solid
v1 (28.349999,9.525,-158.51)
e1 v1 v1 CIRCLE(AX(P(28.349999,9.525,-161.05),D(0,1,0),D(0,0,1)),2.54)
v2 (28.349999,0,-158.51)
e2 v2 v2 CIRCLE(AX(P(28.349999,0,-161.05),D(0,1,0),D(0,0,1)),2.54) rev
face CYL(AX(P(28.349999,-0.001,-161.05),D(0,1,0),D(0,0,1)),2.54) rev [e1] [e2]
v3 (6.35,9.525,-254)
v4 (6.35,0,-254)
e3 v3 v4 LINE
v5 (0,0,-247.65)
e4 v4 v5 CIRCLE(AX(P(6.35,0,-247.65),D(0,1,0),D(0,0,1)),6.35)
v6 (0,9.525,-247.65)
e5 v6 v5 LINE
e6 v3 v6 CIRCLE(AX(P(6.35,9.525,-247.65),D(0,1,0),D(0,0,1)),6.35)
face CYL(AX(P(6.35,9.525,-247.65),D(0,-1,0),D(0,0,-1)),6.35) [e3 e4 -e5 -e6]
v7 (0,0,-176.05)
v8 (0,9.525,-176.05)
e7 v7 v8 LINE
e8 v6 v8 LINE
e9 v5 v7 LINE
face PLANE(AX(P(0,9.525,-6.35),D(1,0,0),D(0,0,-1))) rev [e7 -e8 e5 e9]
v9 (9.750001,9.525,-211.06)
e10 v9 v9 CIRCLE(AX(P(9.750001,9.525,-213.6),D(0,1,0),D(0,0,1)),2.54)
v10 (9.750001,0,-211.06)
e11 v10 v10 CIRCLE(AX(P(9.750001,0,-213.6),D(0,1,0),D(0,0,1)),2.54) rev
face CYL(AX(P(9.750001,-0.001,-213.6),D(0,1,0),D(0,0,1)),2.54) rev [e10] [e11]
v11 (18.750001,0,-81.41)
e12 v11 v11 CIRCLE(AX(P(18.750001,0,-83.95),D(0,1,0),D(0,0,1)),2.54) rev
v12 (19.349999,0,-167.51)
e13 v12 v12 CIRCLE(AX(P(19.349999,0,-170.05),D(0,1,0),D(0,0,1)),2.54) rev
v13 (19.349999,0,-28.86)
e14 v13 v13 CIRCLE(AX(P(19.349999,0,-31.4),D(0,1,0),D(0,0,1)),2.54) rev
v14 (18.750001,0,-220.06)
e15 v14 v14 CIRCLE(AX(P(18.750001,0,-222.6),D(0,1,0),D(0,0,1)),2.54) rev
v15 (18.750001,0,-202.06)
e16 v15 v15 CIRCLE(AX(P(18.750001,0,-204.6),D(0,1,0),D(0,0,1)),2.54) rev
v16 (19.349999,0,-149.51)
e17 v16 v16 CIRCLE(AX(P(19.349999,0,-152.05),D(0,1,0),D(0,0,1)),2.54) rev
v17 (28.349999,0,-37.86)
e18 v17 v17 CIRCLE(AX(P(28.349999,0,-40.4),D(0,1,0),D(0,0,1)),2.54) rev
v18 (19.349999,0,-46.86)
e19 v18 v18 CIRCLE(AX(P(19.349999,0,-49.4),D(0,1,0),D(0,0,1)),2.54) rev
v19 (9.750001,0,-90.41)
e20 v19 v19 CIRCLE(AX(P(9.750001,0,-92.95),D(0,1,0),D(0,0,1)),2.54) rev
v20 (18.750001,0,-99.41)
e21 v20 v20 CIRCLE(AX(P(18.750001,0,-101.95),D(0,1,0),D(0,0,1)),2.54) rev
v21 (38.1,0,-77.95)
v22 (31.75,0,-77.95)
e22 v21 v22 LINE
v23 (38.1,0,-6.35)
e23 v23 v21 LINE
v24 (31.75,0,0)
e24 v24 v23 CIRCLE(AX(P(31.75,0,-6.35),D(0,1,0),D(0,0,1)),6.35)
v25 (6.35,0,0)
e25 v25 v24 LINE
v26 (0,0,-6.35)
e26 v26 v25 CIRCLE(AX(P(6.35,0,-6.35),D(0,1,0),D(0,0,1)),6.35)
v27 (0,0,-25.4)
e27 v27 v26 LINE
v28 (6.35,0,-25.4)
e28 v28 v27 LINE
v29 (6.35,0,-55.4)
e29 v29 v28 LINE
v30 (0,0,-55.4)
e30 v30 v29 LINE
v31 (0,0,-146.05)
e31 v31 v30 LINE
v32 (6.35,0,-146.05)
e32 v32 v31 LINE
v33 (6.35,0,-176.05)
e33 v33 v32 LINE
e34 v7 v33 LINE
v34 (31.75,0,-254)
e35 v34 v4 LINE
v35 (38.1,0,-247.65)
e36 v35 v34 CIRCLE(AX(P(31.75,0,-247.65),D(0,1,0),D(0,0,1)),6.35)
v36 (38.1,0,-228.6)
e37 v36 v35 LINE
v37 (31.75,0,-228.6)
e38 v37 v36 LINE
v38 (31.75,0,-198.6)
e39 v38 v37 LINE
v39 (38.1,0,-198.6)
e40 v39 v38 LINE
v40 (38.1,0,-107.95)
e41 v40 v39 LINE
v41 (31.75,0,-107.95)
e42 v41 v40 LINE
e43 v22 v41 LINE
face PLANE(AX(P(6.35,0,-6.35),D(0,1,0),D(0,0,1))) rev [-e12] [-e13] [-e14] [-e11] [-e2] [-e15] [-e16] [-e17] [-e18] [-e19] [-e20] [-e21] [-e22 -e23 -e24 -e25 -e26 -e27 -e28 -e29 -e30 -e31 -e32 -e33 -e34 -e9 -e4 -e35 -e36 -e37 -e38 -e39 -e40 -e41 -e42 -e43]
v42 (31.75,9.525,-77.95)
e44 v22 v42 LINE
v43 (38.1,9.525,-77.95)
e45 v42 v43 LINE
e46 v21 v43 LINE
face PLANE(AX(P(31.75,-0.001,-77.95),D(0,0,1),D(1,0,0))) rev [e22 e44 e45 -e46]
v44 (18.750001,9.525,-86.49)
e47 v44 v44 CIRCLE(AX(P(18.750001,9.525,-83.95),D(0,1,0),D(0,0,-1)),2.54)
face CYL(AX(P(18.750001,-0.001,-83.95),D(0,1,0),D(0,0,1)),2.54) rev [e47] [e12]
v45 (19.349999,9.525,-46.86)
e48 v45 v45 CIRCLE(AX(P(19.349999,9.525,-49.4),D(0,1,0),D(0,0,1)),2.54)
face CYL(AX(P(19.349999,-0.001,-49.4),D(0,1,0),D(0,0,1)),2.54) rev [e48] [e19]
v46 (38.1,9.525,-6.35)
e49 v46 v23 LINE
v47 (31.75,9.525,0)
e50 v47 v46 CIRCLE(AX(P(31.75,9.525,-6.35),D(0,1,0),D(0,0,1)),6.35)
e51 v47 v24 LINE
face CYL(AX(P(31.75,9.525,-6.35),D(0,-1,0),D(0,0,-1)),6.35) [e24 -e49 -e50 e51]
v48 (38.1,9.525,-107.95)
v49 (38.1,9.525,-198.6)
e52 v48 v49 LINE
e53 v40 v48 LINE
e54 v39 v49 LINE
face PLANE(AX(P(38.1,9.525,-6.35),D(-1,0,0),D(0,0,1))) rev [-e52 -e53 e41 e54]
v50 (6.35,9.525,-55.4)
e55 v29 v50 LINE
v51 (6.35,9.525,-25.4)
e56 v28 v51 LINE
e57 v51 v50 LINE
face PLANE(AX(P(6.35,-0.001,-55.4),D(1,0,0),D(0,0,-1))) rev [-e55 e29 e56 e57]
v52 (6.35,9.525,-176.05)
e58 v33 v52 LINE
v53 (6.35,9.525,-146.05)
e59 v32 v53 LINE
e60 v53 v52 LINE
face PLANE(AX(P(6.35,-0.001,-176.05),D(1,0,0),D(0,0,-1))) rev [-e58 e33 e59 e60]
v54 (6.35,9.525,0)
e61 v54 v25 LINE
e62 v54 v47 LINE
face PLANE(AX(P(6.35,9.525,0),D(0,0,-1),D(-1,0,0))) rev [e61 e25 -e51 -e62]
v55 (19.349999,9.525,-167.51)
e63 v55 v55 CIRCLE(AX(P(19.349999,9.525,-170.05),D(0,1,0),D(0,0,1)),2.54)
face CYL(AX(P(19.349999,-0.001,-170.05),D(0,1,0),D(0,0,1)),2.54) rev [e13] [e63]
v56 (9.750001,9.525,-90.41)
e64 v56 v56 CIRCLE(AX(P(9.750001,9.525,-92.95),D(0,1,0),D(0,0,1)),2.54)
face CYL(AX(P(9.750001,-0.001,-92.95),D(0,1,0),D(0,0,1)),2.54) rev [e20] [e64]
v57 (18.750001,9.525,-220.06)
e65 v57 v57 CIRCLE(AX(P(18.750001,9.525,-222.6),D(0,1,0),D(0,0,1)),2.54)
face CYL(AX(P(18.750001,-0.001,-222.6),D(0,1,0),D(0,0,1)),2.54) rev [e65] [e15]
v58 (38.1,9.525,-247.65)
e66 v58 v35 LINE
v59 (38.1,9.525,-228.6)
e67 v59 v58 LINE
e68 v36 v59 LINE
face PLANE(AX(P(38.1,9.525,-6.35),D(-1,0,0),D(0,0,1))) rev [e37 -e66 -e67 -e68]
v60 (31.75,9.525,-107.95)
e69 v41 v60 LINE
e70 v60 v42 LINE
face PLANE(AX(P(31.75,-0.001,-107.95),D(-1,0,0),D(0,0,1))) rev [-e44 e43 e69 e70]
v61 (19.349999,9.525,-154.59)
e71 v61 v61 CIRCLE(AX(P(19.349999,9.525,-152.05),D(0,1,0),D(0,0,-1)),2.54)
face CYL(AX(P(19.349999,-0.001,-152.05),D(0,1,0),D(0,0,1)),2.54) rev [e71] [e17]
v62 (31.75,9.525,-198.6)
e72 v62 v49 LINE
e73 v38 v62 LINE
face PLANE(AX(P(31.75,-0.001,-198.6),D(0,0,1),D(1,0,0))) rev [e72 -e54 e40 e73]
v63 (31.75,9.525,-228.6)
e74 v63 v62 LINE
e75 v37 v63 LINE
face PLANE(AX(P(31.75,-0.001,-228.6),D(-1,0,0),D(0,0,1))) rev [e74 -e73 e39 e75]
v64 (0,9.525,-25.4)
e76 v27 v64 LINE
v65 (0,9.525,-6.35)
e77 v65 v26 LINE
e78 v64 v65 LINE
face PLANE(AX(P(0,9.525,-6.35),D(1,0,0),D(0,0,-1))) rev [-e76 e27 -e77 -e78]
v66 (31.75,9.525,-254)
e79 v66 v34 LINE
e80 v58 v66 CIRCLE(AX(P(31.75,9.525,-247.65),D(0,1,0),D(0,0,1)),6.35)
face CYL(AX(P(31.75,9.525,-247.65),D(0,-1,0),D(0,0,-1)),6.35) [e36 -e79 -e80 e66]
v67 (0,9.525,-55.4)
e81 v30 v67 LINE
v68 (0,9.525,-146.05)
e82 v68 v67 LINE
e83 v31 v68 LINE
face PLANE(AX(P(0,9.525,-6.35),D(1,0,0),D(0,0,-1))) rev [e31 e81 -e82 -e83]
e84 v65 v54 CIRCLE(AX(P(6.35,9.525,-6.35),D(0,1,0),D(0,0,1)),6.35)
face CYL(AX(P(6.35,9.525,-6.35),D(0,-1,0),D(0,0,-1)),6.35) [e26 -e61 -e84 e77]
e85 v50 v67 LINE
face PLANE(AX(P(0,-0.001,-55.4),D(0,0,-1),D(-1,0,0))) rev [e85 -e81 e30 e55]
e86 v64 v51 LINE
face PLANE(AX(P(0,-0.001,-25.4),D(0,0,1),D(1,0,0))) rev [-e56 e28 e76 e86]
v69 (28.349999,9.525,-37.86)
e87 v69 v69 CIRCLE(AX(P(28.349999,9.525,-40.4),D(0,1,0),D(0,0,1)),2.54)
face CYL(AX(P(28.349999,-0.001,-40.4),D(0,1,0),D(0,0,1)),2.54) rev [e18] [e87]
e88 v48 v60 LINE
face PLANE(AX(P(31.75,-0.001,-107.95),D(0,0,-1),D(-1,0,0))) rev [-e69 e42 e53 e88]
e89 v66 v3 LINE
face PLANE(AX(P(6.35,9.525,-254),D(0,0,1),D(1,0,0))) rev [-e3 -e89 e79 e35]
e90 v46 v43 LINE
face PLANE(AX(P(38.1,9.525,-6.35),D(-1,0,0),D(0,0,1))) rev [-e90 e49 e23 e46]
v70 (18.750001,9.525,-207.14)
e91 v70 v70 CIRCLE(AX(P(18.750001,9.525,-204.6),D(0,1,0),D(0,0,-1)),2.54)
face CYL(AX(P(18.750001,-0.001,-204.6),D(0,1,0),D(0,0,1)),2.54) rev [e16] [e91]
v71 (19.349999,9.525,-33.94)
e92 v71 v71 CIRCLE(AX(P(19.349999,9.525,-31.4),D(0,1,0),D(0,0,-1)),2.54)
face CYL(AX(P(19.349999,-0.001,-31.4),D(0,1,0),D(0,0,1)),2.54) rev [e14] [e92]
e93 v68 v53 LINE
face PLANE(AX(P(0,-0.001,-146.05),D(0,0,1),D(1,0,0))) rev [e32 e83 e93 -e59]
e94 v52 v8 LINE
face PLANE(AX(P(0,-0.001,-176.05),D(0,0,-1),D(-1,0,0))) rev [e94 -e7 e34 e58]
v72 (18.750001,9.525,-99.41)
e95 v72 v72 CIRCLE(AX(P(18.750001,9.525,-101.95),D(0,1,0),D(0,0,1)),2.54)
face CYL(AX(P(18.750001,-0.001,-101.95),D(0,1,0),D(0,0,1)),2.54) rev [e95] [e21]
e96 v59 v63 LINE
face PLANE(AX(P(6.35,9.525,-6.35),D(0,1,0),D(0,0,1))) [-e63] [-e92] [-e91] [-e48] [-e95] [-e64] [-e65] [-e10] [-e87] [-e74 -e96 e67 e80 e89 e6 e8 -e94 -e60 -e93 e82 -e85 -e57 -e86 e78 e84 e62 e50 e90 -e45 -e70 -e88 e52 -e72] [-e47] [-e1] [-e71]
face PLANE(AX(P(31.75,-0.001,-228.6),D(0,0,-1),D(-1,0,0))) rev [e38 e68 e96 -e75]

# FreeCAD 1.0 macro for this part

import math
import FreeCAD as App
import Part
import Sketcher

V = App.Vector
Q = App.Units.Quantity

doc = App.newDocument("Part")
params = doc.addObject("Spreadsheet::Sheet", "Params")
for row, (alias, value) in enumerate([
    ("sketch1_width", "1 in"),
    ("sketch1_radius", "0.25 in"),
    ("sketch1_height", "9.5 in"),
    ("pad1_length", "0.375 in"),
    ("sketch2_diameter", "0.2 in"),
    ("sketch3_diameter", "0.2 in"),
    ("sketch4_diameter", "0.2 in"),
    ("sketch5_diameter", "0.2 in"),
    ("sketch6_diameter", "0.2 in"),
    ("sketch7_diameter", "0.2 in"),
    ("sketch8_diameter", "0.2 in"),
    ("sketch9_diameter", "0.2 in"),
    ("sketch10_diameter", "0.2 in"),
    ("sketch11_diameter", "0.2 in"),
    ("sketch12_diameter", "0.2 in"),
    ("sketch13_diameter", "0.2 in"),
    ("sketch14_width", "0.25 in"),
    ("sketch15_width", "0.25 in"),
    ("sketch16_width", "0.25 in"),
    ("sketch17_width", "0.25 in"),
], start=1):
    params.set(f"A{row}", alias)
    params.set(f"B{row}", "=" + value)
    params.setAlias(f"B{row}", alias)

body = doc.addObject("PartDesign::Body", "Body")

# Sketch on XZ plane
sketch1 = body.newObject("Sketcher::SketchObject", "Sketch")
sketch1.AttachmentSupport = (doc.getObject("XZ_Plane"), [""])
sketch1.MapMode = "FlatFace"
sketch1.addGeometry([
    Part.LineSegment(V(6.35, 0, 0), V(31.75, 0, 0)),  # 0
    Part.ArcOfCircle(Part.Circle(V(31.75, -6.35, 0), V(0, 0, 1), 6.35), math.radians(0), math.radians(90)),  # 1
    Part.LineSegment(V(38.1, -6.35, 0), V(38.1, -247.65, 0)),  # 2
    Part.ArcOfCircle(Part.Circle(V(31.75, -247.65, 0), V(0, 0, 1), 6.35), math.radians(-90), math.radians(0)),  # 3
    Part.LineSegment(V(31.75, -254, 0), V(6.35, -254, 0)),  # 4
    Part.ArcOfCircle(Part.Circle(V(6.35, -247.65, 0), V(0, 0, 1), 6.35), math.radians(180), math.radians(270)),  # 5
    Part.LineSegment(V(0, -247.65, 0), V(0, -6.35, 0)),  # 6
    Part.ArcOfCircle(Part.Circle(V(6.35, -6.35, 0), V(0, 0, 1), 6.35), math.radians(90), math.radians(180)),  # 7
], False)
sketch1.addConstraint([
    Sketcher.Constraint("Tangent", 0, 2, 1, 2),
    Sketcher.Constraint("Tangent", 1, 1, 2, 1),
    Sketcher.Constraint("Tangent", 2, 2, 3, 2),
    Sketcher.Constraint("Tangent", 3, 1, 4, 1),
    Sketcher.Constraint("Tangent", 4, 2, 5, 2),
    Sketcher.Constraint("Tangent", 5, 1, 6, 1),
    Sketcher.Constraint("Tangent", 6, 2, 7, 2),
    Sketcher.Constraint("Tangent", 7, 1, 0, 1),
    Sketcher.Constraint("Horizontal", 0),
    Sketcher.Constraint("Vertical", 2),
    Sketcher.Constraint("Horizontal", 4),
    Sketcher.Constraint("Vertical", 6),
    Sketcher.Constraint("Equal", 1, 3),
    Sketcher.Constraint("Equal", 3, 5),
    Sketcher.Constraint("Equal", 5, 7),
    Sketcher.Constraint("PointOnObject", 0, 2, -1),
    Sketcher.Constraint("PointOnObject", 5, 1, -2),
    Sketcher.Constraint("DistanceX", 0, 1, 0, 2, Q("1 in")),
    Sketcher.Constraint("Radius", 1, Q("0.25 in")),
    Sketcher.Constraint("DistanceY", 2, 2, 2, 1, Q("9.5 in")),
])
sketch1.setExpression("Constraints[17]", "Params.sketch1_width")
sketch1.setExpression("Constraints[18]", "Params.sketch1_radius")
sketch1.setExpression("Constraints[19]", "Params.sketch1_height")
pad1 = body.newObject("PartDesign::Pad", "Pad")
pad1.Profile = sketch1
pad1.setExpression("Length", "Params.pad1_length")
pad1.Reversed = True

# Sketch on XZ plane
sketch2 = body.newObject("Sketcher::SketchObject", "Sketch001")
sketch2.AttachmentSupport = (doc.getObject("XZ_Plane"), [""])
sketch2.MapMode = "FlatFace"
sketch2.AttachmentOffset = App.Placement(V(0, 0, -0.375 * 25.4), App.Rotation())
sketch2.addGeometry(Part.Circle(V(28.349999, -40.4, 0), V(0, 0, 1), 2.54), False)
sketch2.addConstraint([
    Sketcher.Constraint("Diameter", 0, Q("0.2 in")),
    Sketcher.Constraint("DistanceX", -1, 1, 0, 3, Q("28.349999 mm")),
    Sketcher.Constraint("DistanceY", 0, 3, -1, 1, Q("40.4 mm")),
])
sketch2.setExpression("Constraints[0]", "Params.sketch2_diameter")
pocket1 = body.newObject("PartDesign::Pocket", "Pocket")
pocket1.Profile = sketch2
pocket1.Type = "UpToFirst"
pocket1.Reversed = True

# Sketch on XZ plane
sketch3 = body.newObject("Sketcher::SketchObject", "Sketch002")
sketch3.AttachmentSupport = (doc.getObject("XZ_Plane"), [""])
sketch3.MapMode = "FlatFace"
sketch3.AttachmentOffset = App.Placement(V(0, 0, -0.375 * 25.4), App.Rotation())
sketch3.addGeometry(Part.Circle(V(19.349999, -49.4, 0), V(0, 0, 1), 2.54), False)
sketch3.addConstraint([
    Sketcher.Constraint("Diameter", 0, Q("0.2 in")),
    Sketcher.Constraint("DistanceX", -1, 1, 0, 3, Q("19.349999 mm")),
    Sketcher.Constraint("DistanceY", 0, 3, -1, 1, Q("49.4 mm")),
])
sketch3.setExpression("Constraints[0]", "Params.sketch3_diameter")
pocket2 = body.newObject("PartDesign::Pocket", "Pocket001")
pocket2.Profile = sketch3
pocket2.Type = "UpToFirst"
pocket2.Reversed = True

# Sketch on XZ plane
sketch4 = body.newObject("Sketcher::SketchObject", "Sketch003")
sketch4.AttachmentSupport = (doc.getObject("XZ_Plane"), [""])
sketch4.MapMode = "FlatFace"
sketch4.AttachmentOffset = App.Placement(V(0, 0, -0.375 * 25.4), App.Rotation())
sketch4.addGeometry(Part.Circle(V(19.349999, -31.4, 0), V(0, 0, 1), 2.54), False)
sketch4.addConstraint([
    Sketcher.Constraint("Diameter", 0, Q("0.2 in")),
    Sketcher.Constraint("DistanceX", -1, 1, 0, 3, Q("19.349999 mm")),
    Sketcher.Constraint("DistanceY", 0, 3, -1, 1, Q("31.4 mm")),
])
sketch4.setExpression("Constraints[0]", "Params.sketch4_diameter")
pocket3 = body.newObject("PartDesign::Pocket", "Pocket002")
pocket3.Profile = sketch4
pocket3.Type = "UpToFirst"
pocket3.Reversed = True

# Sketch on XZ plane
sketch5 = body.newObject("Sketcher::SketchObject", "Sketch004")
sketch5.AttachmentSupport = (doc.getObject("XZ_Plane"), [""])
sketch5.MapMode = "FlatFace"
sketch5.AttachmentOffset = App.Placement(V(0, 0, -0.375 * 25.4), App.Rotation())
sketch5.addGeometry(Part.Circle(V(28.349999, -161.05, 0), V(0, 0, 1), 2.54), False)
sketch5.addConstraint([
    Sketcher.Constraint("Diameter", 0, Q("0.2 in")),
    Sketcher.Constraint("DistanceX", -1, 1, 0, 3, Q("28.349999 mm")),
    Sketcher.Constraint("DistanceY", 0, 3, -1, 1, Q("161.05 mm")),
])
sketch5.setExpression("Constraints[0]", "Params.sketch5_diameter")
pocket4 = body.newObject("PartDesign::Pocket", "Pocket003")
pocket4.Profile = sketch5
pocket4.Type = "UpToFirst"
pocket4.Reversed = True

# Sketch on XZ plane
sketch6 = body.newObject("Sketcher::SketchObject", "Sketch005")
sketch6.AttachmentSupport = (doc.getObject("XZ_Plane"), [""])
sketch6.MapMode = "FlatFace"
sketch6.AttachmentOffset = App.Placement(V(0, 0, -0.375 * 25.4), App.Rotation())
sketch6.addGeometry(Part.Circle(V(19.349999, -170.05, 0), V(0, 0, 1), 2.54), False)
sketch6.addConstraint([
    Sketcher.Constraint("Diameter", 0, Q("0.2 in")),
    Sketcher.Constraint("DistanceX", -1, 1, 0, 3, Q("19.349999 mm")),
    Sketcher.Constraint("DistanceY", 0, 3, -1, 1, Q("170.05 mm")),
])
sketch6.setExpression("Constraints[0]", "Params.sketch6_diameter")
pocket5 = body.newObject("PartDesign::Pocket", "Pocket004")
pocket5.Profile = sketch6
pocket5.Type = "UpToFirst"
pocket5.Reversed = True

# Sketch on XZ plane
sketch7 = body.newObject("Sketcher::SketchObject", "Sketch006")
sketch7.AttachmentSupport = (doc.getObject("XZ_Plane"), [""])
sketch7.MapMode = "FlatFace"
sketch7.AttachmentOffset = App.Placement(V(0, 0, -0.375 * 25.4), App.Rotation())
sketch7.addGeometry(Part.Circle(V(19.349999, -152.05, 0), V(0, 0, 1), 2.54), False)
sketch7.addConstraint([
    Sketcher.Constraint("Diameter", 0, Q("0.2 in")),
    Sketcher.Constraint("DistanceX", -1, 1, 0, 3, Q("19.349999 mm")),
    Sketcher.Constraint("DistanceY", 0, 3, -1, 1, Q("152.05 mm")),
])
sketch7.setExpression("Constraints[0]", "Params.sketch7_diameter")
pocket6 = body.newObject("PartDesign::Pocket", "Pocket005")
pocket6.Profile = sketch7
pocket6.Type = "UpToFirst"
pocket6.Reversed = True

# Sketch on XZ plane
sketch8 = body.newObject("Sketcher::SketchObject", "Sketch007")
sketch8.AttachmentSupport = (doc.getObject("XZ_Plane"), [""])
sketch8.MapMode = "FlatFace"
sketch8.AttachmentOffset = App.Placement(V(0, 0, -0.375 * 25.4), App.Rotation())
sketch8.addGeometry(Part.Circle(V(9.750001, -213.6, 0), V(0, 0, 1), 2.54), False)
sketch8.addConstraint([
    Sketcher.Constraint("Diameter", 0, Q("0.2 in")),
    Sketcher.Constraint("DistanceX", -1, 1, 0, 3, Q("9.750001 mm")),
    Sketcher.Constraint("DistanceY", 0, 3, -1, 1, Q("213.6 mm")),
])
sketch8.setExpression("Constraints[0]", "Params.sketch8_diameter")
pocket7 = body.newObject("PartDesign::Pocket", "Pocket006")
pocket7.Profile = sketch8
pocket7.Type = "UpToFirst"
pocket7.Reversed = True

# Sketch on XZ plane
sketch9 = body.newObject("Sketcher::SketchObject", "Sketch008")
sketch9.AttachmentSupport = (doc.getObject("XZ_Plane"), [""])
sketch9.MapMode = "FlatFace"
sketch9.AttachmentOffset = App.Placement(V(0, 0, -0.375 * 25.4), App.Rotation())
sketch9.addGeometry(Part.Circle(V(18.750001, -222.6, 0), V(0, 0, 1), 2.54), False)
sketch9.addConstraint([
    Sketcher.Constraint("Diameter", 0, Q("0.2 in")),
    Sketcher.Constraint("DistanceX", -1, 1, 0, 3, Q("18.750001 mm")),
    Sketcher.Constraint("DistanceY", 0, 3, -1, 1, Q("222.6 mm")),
])
sketch9.setExpression("Constraints[0]", "Params.sketch9_diameter")
pocket8 = body.newObject("PartDesign::Pocket", "Pocket007")
pocket8.Profile = sketch9
pocket8.Type = "UpToFirst"
pocket8.Reversed = True

# Sketch on XZ plane
sketch10 = body.newObject("Sketcher::SketchObject", "Sketch009")
sketch10.AttachmentSupport = (doc.getObject("XZ_Plane"), [""])
sketch10.MapMode = "FlatFace"
sketch10.AttachmentOffset = App.Placement(V(0, 0, -0.375 * 25.4), App.Rotation())
sketch10.addGeometry(Part.Circle(V(18.750001, -204.6, 0), V(0, 0, 1), 2.54), False)
sketch10.addConstraint([
    Sketcher.Constraint("Diameter", 0, Q("0.2 in")),
    Sketcher.Constraint("DistanceX", -1, 1, 0, 3, Q("18.750001 mm")),
    Sketcher.Constraint("DistanceY", 0, 3, -1, 1, Q("204.6 mm")),
])
sketch10.setExpression("Constraints[0]", "Params.sketch10_diameter")
pocket9 = body.newObject("PartDesign::Pocket", "Pocket008")
pocket9.Profile = sketch10
pocket9.Type = "UpToFirst"
pocket9.Reversed = True

# Sketch on XZ plane
sketch11 = body.newObject("Sketcher::SketchObject", "Sketch010")
sketch11.AttachmentSupport = (doc.getObject("XZ_Plane"), [""])
sketch11.MapMode = "FlatFace"
sketch11.AttachmentOffset = App.Placement(V(0, 0, -0.375 * 25.4), App.Rotation())
sketch11.addGeometry(Part.Circle(V(9.750001, -92.95, 0), V(0, 0, 1), 2.54), False)
sketch11.addConstraint([
    Sketcher.Constraint("Diameter", 0, Q("0.2 in")),
    Sketcher.Constraint("DistanceX", -1, 1, 0, 3, Q("9.750001 mm")),
    Sketcher.Constraint("DistanceY", 0, 3, -1, 1, Q("92.95 mm")),
])
sketch11.setExpression("Constraints[0]", "Params.sketch11_diameter")
pocket10 = body.newObject("PartDesign::Pocket", "Pocket009")
pocket10.Profile = sketch11
pocket10.Type = "UpToFirst"
pocket10.Reversed = True

# Sketch on XZ plane
sketch12 = body.newObject("Sketcher::SketchObject", "Sketch011")
sketch12.AttachmentSupport = (doc.getObject("XZ_Plane"), [""])
sketch12.MapMode = "FlatFace"
sketch12.AttachmentOffset = App.Placement(V(0, 0, -0.375 * 25.4), App.Rotation())
sketch12.addGeometry(Part.Circle(V(18.750001, -101.95, 0), V(0, 0, 1), 2.54), False)
sketch12.addConstraint([
    Sketcher.Constraint("Diameter", 0, Q("0.2 in")),
    Sketcher.Constraint("DistanceX", -1, 1, 0, 3, Q("18.750001 mm")),
    Sketcher.Constraint("DistanceY", 0, 3, -1, 1, Q("101.95 mm")),
])
sketch12.setExpression("Constraints[0]", "Params.sketch12_diameter")
pocket11 = body.newObject("PartDesign::Pocket", "Pocket010")
pocket11.Profile = sketch12
pocket11.Type = "UpToFirst"
pocket11.Reversed = True

# Sketch on XZ plane
sketch13 = body.newObject("Sketcher::SketchObject", "Sketch012")
sketch13.AttachmentSupport = (doc.getObject("XZ_Plane"), [""])
sketch13.MapMode = "FlatFace"
sketch13.AttachmentOffset = App.Placement(V(0, 0, -0.375 * 25.4), App.Rotation())
sketch13.addGeometry(Part.Circle(V(18.750001, -83.95, 0), V(0, 0, 1), 2.54), False)
sketch13.addConstraint([
    Sketcher.Constraint("Diameter", 0, Q("0.2 in")),
    Sketcher.Constraint("DistanceX", -1, 1, 0, 3, Q("18.750001 mm")),
    Sketcher.Constraint("DistanceY", 0, 3, -1, 1, Q("83.95 mm")),
])
sketch13.setExpression("Constraints[0]", "Params.sketch13_diameter")
pocket12 = body.newObject("PartDesign::Pocket", "Pocket011")
pocket12.Profile = sketch13
pocket12.Type = "UpToFirst"
pocket12.Reversed = True

# Sketch on XZ plane
sketch14 = body.newObject("Sketcher::SketchObject", "Sketch013")
sketch14.AttachmentSupport = (doc.getObject("XZ_Plane"), [""])
sketch14.MapMode = "FlatFace"
sketch14.AttachmentOffset = App.Placement(V(0, 0, -0.375 * 25.4), App.Rotation())
sketch14.addGeometry([
    Part.LineSegment(V(0, -55.4, 0), V(0, -25.4, 0)),
    Part.LineSegment(V(0, -25.4, 0), V(6.35, -25.4, 0)),
    Part.LineSegment(V(6.35, -25.4, 0), V(6.35, -55.4, 0)),
    Part.LineSegment(V(6.35, -55.4, 0), V(0, -55.4, 0)),
], False)
sketch14.addConstraint([
    Sketcher.Constraint("Coincident", 0, 2, 1, 1),
    Sketcher.Constraint("Coincident", 1, 2, 2, 1),
    Sketcher.Constraint("Coincident", 2, 2, 3, 1),
    Sketcher.Constraint("Coincident", 3, 2, 0, 1),
    Sketcher.Constraint("Vertical", 0),
    Sketcher.Constraint("Horizontal", 1),
    Sketcher.Constraint("Vertical", 2),
    Sketcher.Constraint("Horizontal", 3),
    Sketcher.Constraint("PointOnObject", 0, 2, -2),
    Sketcher.Constraint("DistanceY", 0, 2, -1, 1, Q("1 in")),
    Sketcher.Constraint("DistanceX", 1, 1, 1, 2, Q("0.25 in")),
    Sketcher.Constraint("DistanceY", 0, 1, 0, 2, Q("30 mm")),
])
sketch14.setExpression("Constraints[10]", "Params.sketch14_width")
pocket13 = body.newObject("PartDesign::Pocket", "Pocket012")
pocket13.Profile = sketch14
pocket13.Type = "UpToFirst"
pocket13.Reversed = True

# Sketch on XZ plane
sketch15 = body.newObject("Sketcher::SketchObject", "Sketch014")
sketch15.AttachmentSupport = (doc.getObject("XZ_Plane"), [""])
sketch15.MapMode = "FlatFace"
sketch15.AttachmentOffset = App.Placement(V(0, 0, -0.375 * 25.4), App.Rotation())
sketch15.addGeometry([
    Part.LineSegment(V(0, -176.05, 0), V(0, -146.05, 0)),
    Part.LineSegment(V(0, -146.05, 0), V(6.35, -146.05, 0)),
    Part.LineSegment(V(6.35, -146.05, 0), V(6.35, -176.05, 0)),
    Part.LineSegment(V(6.35, -176.05, 0), V(0, -176.05, 0)),
], False)
sketch15.addConstraint([
    Sketcher.Constraint("Coincident", 0, 2, 1, 1),
    Sketcher.Constraint("Coincident", 1, 2, 2, 1),
    Sketcher.Constraint("Coincident", 2, 2, 3, 1),
    Sketcher.Constraint("Coincident", 3, 2, 0, 1),
    Sketcher.Constraint("Vertical", 0),
    Sketcher.Constraint("Horizontal", 1),
    Sketcher.Constraint("Vertical", 2),
    Sketcher.Constraint("Horizontal", 3),
    Sketcher.Constraint("PointOnObject", 0, 2, -2),
    Sketcher.Constraint("DistanceX", 1, 1, 1, 2, Q("0.25 in")),
    Sketcher.Constraint("DistanceY", 0, 2, -1, 1, Q("5.75 in")),
    Sketcher.Constraint("DistanceY", 0, 1, 0, 2, Q("30 mm")),
])
sketch15.setExpression("Constraints[9]", "Params.sketch15_width")
pocket14 = body.newObject("PartDesign::Pocket", "Pocket013")
pocket14.Profile = sketch15
pocket14.Type = "UpToFirst"
pocket14.Reversed = True

# Sketch on XZ plane
sketch16 = body.newObject("Sketcher::SketchObject", "Sketch015")
sketch16.AttachmentSupport = (doc.getObject("XZ_Plane"), [""])
sketch16.MapMode = "FlatFace"
sketch16.AttachmentOffset = App.Placement(V(0, 0, -0.375 * 25.4), App.Rotation())
sketch16.addGeometry([
    Part.LineSegment(V(31.75, -228.6, 0), V(31.75, -198.6, 0)),
    Part.LineSegment(V(31.75, -198.6, 0), V(38.1, -198.6, 0)),
    Part.LineSegment(V(38.1, -198.6, 0), V(38.1, -228.6, 0)),
    Part.LineSegment(V(38.1, -228.6, 0), V(31.75, -228.6, 0)),
], False)
sketch16.addConstraint([
    Sketcher.Constraint("Coincident", 0, 2, 1, 1),
    Sketcher.Constraint("Coincident", 1, 2, 2, 1),
    Sketcher.Constraint("Coincident", 2, 2, 3, 1),
    Sketcher.Constraint("Coincident", 3, 2, 0, 1),
    Sketcher.Constraint("Vertical", 0),
    Sketcher.Constraint("Horizontal", 1),
    Sketcher.Constraint("Vertical", 2),
    Sketcher.Constraint("Horizontal", 3),
    Sketcher.Constraint("DistanceY", 2, 2, -1, 1, Q("9 in")),
    Sketcher.Constraint("DistanceX", 1, 1, 1, 2, Q("0.25 in")),
    Sketcher.Constraint("DistanceX", -1, 1, 1, 2, Q("1.5 in")),
    Sketcher.Constraint("DistanceY", 0, 1, 0, 2, Q("30 mm")),
])
sketch16.setExpression("Constraints[9]", "Params.sketch16_width")
pocket15 = body.newObject("PartDesign::Pocket", "Pocket014")
pocket15.Profile = sketch16
pocket15.Type = "UpToFirst"
pocket15.Reversed = True

# Sketch on XZ plane
sketch17 = body.newObject("Sketcher::SketchObject", "Sketch016")
sketch17.AttachmentSupport = (doc.getObject("XZ_Plane"), [""])
sketch17.MapMode = "FlatFace"
sketch17.AttachmentOffset = App.Placement(V(0, 0, -0.375 * 25.4), App.Rotation())
sketch17.addGeometry([
    Part.LineSegment(V(31.75, -107.95, 0), V(31.75, -77.95, 0)),
    Part.LineSegment(V(31.75, -77.95, 0), V(38.1, -77.95, 0)),
    Part.LineSegment(V(38.1, -77.95, 0), V(38.1, -107.95, 0)),
    Part.LineSegment(V(38.1, -107.95, 0), V(31.75, -107.95, 0)),
], False)
sketch17.addConstraint([
    Sketcher.Constraint("Coincident", 0, 2, 1, 1),
    Sketcher.Constraint("Coincident", 1, 2, 2, 1),
    Sketcher.Constraint("Coincident", 2, 2, 3, 1),
    Sketcher.Constraint("Coincident", 3, 2, 0, 1),
    Sketcher.Constraint("Vertical", 0),
    Sketcher.Constraint("Horizontal", 1),
    Sketcher.Constraint("Vertical", 2),
    Sketcher.Constraint("Horizontal", 3),
    Sketcher.Constraint("DistanceX", 1, 1, 1, 2, Q("0.25 in")),
    Sketcher.Constraint("DistanceX", -1, 1, 1, 2, Q("1.5 in")),
    Sketcher.Constraint("DistanceY", 2, 2, -1, 1, Q("4.25 in")),
    Sketcher.Constraint("DistanceY", 0, 1, 0, 2, Q("30 mm")),
])
sketch17.setExpression("Constraints[8]", "Params.sketch17_width")
pocket16 = body.newObject("PartDesign::Pocket", "Pocket015")
pocket16.Profile = sketch17
pocket16.Type = "UpToFirst"
pocket16.Reversed = True

doc.recompute()
